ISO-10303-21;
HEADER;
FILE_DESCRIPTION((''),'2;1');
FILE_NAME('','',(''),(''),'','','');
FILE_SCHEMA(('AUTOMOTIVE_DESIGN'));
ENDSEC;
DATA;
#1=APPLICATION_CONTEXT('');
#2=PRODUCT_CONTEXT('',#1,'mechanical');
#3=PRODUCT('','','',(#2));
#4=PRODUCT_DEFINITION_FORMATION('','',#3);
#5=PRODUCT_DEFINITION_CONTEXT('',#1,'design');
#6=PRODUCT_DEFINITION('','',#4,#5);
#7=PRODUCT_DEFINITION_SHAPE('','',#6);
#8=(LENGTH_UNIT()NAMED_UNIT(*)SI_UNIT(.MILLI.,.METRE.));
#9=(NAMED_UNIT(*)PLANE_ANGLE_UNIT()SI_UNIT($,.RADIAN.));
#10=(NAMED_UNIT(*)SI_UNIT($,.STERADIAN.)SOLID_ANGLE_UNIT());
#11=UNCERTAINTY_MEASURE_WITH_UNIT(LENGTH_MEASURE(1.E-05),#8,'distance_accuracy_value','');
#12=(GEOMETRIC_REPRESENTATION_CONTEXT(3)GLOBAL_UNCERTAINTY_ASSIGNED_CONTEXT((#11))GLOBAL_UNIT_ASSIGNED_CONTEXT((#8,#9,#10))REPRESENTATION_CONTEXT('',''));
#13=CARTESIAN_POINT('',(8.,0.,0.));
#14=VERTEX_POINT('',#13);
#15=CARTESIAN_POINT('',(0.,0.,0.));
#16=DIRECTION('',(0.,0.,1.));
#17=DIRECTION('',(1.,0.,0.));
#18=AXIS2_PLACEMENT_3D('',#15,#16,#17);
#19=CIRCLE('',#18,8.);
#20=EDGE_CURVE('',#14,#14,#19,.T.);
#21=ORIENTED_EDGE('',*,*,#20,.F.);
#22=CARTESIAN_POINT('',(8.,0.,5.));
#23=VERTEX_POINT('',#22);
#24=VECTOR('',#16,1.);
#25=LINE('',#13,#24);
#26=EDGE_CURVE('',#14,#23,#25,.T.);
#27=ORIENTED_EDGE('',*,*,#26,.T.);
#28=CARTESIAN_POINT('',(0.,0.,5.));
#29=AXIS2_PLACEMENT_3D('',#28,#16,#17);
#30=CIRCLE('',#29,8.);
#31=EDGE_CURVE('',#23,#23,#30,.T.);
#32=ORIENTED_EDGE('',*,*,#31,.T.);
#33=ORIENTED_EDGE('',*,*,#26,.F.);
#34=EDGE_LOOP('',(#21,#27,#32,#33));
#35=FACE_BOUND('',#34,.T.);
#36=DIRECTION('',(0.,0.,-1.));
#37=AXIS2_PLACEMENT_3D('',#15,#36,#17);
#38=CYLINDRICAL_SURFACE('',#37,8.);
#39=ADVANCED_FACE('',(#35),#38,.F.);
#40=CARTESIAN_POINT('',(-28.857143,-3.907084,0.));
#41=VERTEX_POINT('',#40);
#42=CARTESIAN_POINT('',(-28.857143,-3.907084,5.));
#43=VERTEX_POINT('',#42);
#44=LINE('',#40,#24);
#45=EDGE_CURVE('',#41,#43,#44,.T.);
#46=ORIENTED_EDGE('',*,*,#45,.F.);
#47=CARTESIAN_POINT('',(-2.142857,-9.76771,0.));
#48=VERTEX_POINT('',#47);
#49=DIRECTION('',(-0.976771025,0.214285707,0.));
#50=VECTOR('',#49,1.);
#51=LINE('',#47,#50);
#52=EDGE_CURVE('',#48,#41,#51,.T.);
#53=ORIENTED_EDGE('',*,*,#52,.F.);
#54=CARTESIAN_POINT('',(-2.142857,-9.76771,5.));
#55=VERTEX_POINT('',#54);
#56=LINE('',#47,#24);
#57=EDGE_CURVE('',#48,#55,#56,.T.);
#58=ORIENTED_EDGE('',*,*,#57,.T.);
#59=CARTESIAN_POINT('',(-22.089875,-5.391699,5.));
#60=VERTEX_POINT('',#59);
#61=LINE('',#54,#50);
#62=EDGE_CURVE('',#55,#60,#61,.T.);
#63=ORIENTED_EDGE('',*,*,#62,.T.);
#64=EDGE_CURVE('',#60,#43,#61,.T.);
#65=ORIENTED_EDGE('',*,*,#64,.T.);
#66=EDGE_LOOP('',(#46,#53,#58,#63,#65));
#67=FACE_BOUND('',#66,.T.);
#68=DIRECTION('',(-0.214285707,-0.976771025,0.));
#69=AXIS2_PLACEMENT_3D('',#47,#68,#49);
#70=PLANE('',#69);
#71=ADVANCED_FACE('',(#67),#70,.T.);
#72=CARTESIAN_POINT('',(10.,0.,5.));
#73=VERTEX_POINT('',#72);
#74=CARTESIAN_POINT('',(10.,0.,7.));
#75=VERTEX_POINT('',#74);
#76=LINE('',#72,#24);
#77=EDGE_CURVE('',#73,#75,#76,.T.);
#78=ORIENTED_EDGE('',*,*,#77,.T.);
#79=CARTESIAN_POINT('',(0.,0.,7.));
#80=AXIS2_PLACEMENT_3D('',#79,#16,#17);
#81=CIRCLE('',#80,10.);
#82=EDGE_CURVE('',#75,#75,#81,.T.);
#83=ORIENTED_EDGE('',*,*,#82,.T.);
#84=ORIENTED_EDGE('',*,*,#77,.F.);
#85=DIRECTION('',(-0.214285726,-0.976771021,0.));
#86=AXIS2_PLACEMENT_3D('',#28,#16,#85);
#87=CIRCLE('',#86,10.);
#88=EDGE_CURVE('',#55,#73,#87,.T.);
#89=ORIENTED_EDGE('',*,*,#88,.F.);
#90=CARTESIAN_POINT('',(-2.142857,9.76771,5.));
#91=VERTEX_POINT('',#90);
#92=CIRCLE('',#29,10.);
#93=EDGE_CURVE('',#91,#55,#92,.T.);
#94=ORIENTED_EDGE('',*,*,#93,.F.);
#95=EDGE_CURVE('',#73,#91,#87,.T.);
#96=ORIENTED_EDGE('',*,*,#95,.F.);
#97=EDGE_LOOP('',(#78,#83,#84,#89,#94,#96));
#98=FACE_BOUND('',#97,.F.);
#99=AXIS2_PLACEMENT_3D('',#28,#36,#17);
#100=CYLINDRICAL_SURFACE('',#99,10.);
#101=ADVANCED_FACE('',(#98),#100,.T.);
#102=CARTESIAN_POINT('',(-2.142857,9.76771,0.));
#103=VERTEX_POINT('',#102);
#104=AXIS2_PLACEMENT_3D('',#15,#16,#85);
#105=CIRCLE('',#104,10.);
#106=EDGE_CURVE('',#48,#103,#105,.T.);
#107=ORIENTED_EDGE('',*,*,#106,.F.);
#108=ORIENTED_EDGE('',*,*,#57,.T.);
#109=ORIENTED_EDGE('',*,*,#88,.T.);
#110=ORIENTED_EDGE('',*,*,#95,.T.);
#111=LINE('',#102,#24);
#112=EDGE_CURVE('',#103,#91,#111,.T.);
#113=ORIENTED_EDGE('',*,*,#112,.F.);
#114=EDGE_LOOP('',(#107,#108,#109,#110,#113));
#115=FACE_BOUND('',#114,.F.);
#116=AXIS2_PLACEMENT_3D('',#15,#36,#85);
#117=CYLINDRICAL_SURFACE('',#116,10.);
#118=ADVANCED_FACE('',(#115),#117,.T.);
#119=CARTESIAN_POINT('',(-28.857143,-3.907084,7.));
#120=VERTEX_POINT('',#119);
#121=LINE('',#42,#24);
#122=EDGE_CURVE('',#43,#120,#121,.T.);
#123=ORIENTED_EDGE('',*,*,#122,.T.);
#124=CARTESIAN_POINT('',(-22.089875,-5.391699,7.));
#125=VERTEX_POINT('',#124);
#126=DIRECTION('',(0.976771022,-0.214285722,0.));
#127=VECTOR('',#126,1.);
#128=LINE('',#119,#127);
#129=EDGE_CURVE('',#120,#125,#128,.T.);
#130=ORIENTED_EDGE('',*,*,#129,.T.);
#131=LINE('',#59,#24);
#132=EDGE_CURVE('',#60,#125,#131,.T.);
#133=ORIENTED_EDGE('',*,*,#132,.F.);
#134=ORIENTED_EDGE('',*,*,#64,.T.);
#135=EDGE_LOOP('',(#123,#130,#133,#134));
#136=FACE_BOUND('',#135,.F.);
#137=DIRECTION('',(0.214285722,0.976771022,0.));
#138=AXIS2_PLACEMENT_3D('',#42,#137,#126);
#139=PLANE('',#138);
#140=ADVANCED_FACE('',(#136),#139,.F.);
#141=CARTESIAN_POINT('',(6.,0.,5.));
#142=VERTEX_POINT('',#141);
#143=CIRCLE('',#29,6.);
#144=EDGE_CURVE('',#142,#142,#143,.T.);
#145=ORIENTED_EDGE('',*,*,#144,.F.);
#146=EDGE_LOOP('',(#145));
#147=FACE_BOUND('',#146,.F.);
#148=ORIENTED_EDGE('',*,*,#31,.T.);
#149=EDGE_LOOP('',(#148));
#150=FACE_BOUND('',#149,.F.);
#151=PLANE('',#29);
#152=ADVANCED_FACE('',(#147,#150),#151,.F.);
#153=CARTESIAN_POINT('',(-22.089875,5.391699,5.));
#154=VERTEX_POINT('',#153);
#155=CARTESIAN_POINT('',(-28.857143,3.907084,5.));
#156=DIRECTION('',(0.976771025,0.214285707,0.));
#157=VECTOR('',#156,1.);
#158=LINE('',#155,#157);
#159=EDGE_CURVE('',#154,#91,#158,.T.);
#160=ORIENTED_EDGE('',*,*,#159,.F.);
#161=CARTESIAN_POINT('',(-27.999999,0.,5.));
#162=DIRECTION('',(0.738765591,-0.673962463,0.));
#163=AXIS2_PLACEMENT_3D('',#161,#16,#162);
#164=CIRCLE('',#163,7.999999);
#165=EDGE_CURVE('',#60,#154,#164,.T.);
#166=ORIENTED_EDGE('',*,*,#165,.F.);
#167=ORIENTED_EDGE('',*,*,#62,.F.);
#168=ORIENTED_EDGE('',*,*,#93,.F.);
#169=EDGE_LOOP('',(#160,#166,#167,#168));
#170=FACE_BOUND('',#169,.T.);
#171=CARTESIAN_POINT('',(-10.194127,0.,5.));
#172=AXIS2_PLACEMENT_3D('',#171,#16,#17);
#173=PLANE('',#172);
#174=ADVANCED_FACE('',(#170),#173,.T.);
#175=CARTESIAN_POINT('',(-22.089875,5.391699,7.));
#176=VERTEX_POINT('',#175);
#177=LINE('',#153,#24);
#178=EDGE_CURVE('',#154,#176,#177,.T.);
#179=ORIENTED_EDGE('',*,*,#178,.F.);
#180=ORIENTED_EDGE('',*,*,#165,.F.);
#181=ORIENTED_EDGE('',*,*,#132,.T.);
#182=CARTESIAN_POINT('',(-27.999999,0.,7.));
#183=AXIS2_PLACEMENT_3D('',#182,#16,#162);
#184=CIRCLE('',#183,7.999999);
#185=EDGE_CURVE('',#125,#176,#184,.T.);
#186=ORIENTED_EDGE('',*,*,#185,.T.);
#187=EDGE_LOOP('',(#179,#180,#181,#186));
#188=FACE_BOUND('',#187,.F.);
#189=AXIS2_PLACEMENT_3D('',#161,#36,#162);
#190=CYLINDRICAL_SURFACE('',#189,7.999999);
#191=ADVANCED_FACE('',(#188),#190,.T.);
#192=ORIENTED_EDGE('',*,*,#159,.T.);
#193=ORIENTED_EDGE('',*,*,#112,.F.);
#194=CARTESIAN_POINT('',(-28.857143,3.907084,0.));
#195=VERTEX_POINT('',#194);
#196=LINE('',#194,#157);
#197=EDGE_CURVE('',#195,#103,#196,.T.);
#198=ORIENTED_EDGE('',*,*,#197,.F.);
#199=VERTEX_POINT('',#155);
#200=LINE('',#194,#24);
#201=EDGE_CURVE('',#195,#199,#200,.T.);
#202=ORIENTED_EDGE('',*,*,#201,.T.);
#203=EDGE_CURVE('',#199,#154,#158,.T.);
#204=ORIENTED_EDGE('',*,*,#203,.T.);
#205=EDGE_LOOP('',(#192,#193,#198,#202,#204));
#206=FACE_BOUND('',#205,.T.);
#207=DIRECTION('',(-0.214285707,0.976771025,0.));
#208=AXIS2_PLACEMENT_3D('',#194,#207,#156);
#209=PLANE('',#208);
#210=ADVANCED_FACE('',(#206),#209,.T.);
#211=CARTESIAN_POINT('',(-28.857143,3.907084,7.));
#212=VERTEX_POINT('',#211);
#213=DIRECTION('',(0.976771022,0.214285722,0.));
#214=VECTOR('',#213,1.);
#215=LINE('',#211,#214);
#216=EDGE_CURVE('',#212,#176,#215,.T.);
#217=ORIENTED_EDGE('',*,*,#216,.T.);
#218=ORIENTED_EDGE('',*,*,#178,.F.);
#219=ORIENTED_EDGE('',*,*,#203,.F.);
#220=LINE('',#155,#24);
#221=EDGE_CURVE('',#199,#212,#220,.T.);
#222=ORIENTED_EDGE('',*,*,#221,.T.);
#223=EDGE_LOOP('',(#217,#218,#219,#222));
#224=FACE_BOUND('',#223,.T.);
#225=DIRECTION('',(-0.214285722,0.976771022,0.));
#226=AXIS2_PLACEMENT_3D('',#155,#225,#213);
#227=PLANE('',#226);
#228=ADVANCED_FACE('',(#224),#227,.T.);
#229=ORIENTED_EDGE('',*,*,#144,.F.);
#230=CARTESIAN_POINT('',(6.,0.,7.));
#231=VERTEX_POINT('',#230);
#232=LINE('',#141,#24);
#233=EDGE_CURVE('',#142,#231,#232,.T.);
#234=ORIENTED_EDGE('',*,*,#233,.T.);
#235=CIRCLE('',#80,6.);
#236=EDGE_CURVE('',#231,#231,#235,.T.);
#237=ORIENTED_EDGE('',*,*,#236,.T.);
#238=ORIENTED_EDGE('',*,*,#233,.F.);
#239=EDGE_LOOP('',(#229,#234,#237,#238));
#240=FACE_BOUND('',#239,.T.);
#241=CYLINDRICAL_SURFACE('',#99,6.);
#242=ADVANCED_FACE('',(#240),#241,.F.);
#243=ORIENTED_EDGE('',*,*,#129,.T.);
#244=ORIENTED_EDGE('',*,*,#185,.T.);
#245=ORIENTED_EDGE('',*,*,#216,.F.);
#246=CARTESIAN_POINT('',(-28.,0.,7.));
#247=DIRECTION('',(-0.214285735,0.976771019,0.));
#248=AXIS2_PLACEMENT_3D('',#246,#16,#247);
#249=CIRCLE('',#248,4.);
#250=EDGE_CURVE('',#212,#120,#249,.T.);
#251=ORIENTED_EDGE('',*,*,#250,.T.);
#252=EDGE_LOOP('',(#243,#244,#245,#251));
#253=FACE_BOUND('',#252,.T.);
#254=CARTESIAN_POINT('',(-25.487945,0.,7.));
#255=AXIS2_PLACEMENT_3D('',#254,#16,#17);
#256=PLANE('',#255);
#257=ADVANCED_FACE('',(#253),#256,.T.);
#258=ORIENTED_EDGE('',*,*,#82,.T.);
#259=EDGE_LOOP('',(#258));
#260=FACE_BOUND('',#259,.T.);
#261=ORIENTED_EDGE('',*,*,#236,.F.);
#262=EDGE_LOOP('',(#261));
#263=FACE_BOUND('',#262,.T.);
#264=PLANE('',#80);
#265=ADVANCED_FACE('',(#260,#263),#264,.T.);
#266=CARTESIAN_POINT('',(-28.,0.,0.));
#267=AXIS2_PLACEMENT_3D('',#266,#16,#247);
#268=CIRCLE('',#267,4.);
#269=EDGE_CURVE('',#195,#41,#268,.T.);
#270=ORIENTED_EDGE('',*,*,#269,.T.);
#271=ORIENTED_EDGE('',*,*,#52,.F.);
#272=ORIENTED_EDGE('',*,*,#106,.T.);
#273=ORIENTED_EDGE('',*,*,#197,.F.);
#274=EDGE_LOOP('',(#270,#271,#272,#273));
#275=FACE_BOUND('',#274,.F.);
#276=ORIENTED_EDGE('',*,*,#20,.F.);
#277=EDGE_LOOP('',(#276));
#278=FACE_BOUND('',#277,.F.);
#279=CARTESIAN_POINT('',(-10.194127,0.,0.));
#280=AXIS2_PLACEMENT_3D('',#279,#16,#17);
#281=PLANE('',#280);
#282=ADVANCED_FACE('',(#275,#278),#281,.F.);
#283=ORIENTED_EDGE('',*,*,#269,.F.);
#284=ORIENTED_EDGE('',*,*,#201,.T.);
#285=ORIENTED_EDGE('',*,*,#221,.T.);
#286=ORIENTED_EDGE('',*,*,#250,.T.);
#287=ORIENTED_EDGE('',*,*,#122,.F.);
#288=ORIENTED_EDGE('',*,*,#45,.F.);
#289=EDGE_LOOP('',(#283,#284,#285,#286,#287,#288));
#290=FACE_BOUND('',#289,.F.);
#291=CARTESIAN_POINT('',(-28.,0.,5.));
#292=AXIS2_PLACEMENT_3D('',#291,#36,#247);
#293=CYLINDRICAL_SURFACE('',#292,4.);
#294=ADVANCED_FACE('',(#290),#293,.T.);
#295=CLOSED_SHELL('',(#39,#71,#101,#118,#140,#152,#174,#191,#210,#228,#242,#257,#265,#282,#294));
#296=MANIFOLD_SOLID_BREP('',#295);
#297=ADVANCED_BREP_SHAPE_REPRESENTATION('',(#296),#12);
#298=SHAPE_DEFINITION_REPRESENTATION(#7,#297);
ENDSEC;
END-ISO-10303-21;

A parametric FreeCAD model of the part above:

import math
import FreeCAD as App
import Part
import Sketcher
Q = App.Units.Quantity

doc = App.newDocument("Part")
body = doc.addObject("PartDesign::Body", "Body")

# Sketch on XY plane
sketch1 = body.newObject("Sketcher::SketchObject", "Sketch")
sketch1.AttachmentSupport = (doc.getObject("XY_Plane"), [""])
sketch1.MapMode = "FlatFace"
sketch1.addGeometry(Part.ArcOfCircle(Part.Circle(App.Vector(0, 0, 0), App.Vector(0, 0, 1), 10), math.radians(-102), math.radians(102)), False)
sketch1.addGeometry(Part.LineSegment(App.Vector(-2.1, 9.8, 0), App.Vector(-28.9, 3.9, 0)), False)
sketch1.addGeometry(Part.ArcOfCircle(Part.Circle(App.Vector(-28, 0, 0), App.Vector(0, 0, 1), 4), math.radians(102), math.radians(258)), False)
sketch1.addGeometry(Part.LineSegment(App.Vector(-28.9, -3.9, 0), App.Vector(-2.1, -9.8, 0)), False)
sketch1.addGeometry(Part.Circle(App.Vector(0, 0, 0), App.Vector(0, 0, 1), 8), False)
sketch1.addConstraint(Sketcher.Constraint("Tangent", 0, 2, 1, 1))
sketch1.addConstraint(Sketcher.Constraint("Tangent", 1, 2, 2, 1))
sketch1.addConstraint(Sketcher.Constraint("Tangent", 2, 2, 3, 1))
sketch1.addConstraint(Sketcher.Constraint("Tangent", 3, 2, 0, 1))
sketch1.addConstraint(Sketcher.Constraint("Coincident", 0, 3, -1, 1))
sketch1.addConstraint(Sketcher.Constraint("Coincident", 4, 3, -1, 1))
sketch1.addConstraint(Sketcher.Constraint("PointOnObject", 2, 3, -1))
sketch1.addConstraint(Sketcher.Constraint("Diameter", 4, Q("16 mm")))
sketch1.addConstraint(Sketcher.Constraint("Radius", 0, Q("10 mm")))
sketch1.addConstraint(Sketcher.Constraint("Radius", 2, Q("4 mm")))
sketch1.addConstraint(Sketcher.Constraint("DistanceX", 2, 3, -1, 1, Q("28 mm")))
pad1 = body.newObject("PartDesign::Pad", "Pad")
pad1.Profile = sketch1
pad1.Length = 5

# Sketch on XY plane
sketch2 = body.newObject("Sketcher::SketchObject", "Sketch001")
sketch2.AttachmentSupport = (doc.getObject("XY_Plane"), [""])
sketch2.MapMode = "FlatFace"
sketch2.AttachmentOffset = App.Placement(App.Vector(0, 0, 5), App.Rotation())
sketch2.addGeometry(Part.Circle(App.Vector(0, 0, 0), App.Vector(0, 0, 1), 10), False)
sketch2.addGeometry(Part.Circle(App.Vector(0, 0, 0), App.Vector(0, 0, 1), 6), False)
sketch2.addConstraint(Sketcher.Constraint("Coincident", 0, 3, -1, 1))
sketch2.addConstraint(Sketcher.Constraint("Coincident", 1, 3, -1, 1))
sketch2.addConstraint(Sketcher.Constraint("Diameter", 0, Q("20 mm")))
sketch2.addConstraint(Sketcher.Constraint("Diameter", 1, Q("12 mm")))
pad2 = body.newObject("PartDesign::Pad", "Pad001")
pad2.Profile = sketch2
pad2.Length = 2

# Sketch on XY plane
sketch3 = body.newObject("Sketcher::SketchObject", "Sketch002")
sketch3.AttachmentSupport = (doc.getObject("XY_Plane"), [""])
sketch3.MapMode = "FlatFace"
sketch3.AttachmentOffset = App.Placement(App.Vector(0, 0, 5), App.Rotation())
sketch3.addGeometry(Part.ArcOfCircle(Part.Circle(App.Vector(-28, 0, 0), App.Vector(0, 0, 1), 4), math.radians(102), math.radians(258)), False)
sketch3.addGeometry(Part.LineSegment(App.Vector(-28.9, -3.9, 0), App.Vector(-22.1, -5.4, 0)), False)
sketch3.addGeometry(Part.ArcOfCircle(Part.Circle(App.Vector(-28, 0, 0), App.Vector(0, 0, 1), 8), math.radians(-42), math.radians(42)), False)
sketch3.addGeometry(Part.LineSegment(App.Vector(-22.1, 5.4, 0), App.Vector(-28.9, 3.9, 0)), False)
sketch3.addConstraint(Sketcher.Constraint("Tangent", 0, 2, 1, 1))
sketch3.addConstraint(Sketcher.Constraint("Coincident", 1, 2, 2, 1))
sketch3.addConstraint(Sketcher.Constraint("Coincident", 2, 2, 3, 1))
sketch3.addConstraint(Sketcher.Constraint("Tangent", 3, 2, 0, 1))
sketch3.addConstraint(Sketcher.Constraint("Coincident", 2, 3, 0, 3))
sketch3.addConstraint(Sketcher.Constraint("Symmetric", 1, 2, 2, 2, -1))
sketch3.addConstraint(Sketcher.Constraint("Radius", 0, Q("4 mm")))
sketch3.addConstraint(Sketcher.Constraint("Radius", 2, Q("7.999999 mm")))
sketch3.addConstraint(Sketcher.Constraint("DistanceX", 0, 3, -1, 1, Q("28 mm")))
sketch3.addConstraint(Sketcher.Constraint("DistanceY", 1, 2, -1, 1, Q("5.391699 mm")))
pad3 = body.newObject("PartDesign::Pad", "Pad002")
pad3.Profile = sketch3
pad3.Length = 2

doc.recompute()
